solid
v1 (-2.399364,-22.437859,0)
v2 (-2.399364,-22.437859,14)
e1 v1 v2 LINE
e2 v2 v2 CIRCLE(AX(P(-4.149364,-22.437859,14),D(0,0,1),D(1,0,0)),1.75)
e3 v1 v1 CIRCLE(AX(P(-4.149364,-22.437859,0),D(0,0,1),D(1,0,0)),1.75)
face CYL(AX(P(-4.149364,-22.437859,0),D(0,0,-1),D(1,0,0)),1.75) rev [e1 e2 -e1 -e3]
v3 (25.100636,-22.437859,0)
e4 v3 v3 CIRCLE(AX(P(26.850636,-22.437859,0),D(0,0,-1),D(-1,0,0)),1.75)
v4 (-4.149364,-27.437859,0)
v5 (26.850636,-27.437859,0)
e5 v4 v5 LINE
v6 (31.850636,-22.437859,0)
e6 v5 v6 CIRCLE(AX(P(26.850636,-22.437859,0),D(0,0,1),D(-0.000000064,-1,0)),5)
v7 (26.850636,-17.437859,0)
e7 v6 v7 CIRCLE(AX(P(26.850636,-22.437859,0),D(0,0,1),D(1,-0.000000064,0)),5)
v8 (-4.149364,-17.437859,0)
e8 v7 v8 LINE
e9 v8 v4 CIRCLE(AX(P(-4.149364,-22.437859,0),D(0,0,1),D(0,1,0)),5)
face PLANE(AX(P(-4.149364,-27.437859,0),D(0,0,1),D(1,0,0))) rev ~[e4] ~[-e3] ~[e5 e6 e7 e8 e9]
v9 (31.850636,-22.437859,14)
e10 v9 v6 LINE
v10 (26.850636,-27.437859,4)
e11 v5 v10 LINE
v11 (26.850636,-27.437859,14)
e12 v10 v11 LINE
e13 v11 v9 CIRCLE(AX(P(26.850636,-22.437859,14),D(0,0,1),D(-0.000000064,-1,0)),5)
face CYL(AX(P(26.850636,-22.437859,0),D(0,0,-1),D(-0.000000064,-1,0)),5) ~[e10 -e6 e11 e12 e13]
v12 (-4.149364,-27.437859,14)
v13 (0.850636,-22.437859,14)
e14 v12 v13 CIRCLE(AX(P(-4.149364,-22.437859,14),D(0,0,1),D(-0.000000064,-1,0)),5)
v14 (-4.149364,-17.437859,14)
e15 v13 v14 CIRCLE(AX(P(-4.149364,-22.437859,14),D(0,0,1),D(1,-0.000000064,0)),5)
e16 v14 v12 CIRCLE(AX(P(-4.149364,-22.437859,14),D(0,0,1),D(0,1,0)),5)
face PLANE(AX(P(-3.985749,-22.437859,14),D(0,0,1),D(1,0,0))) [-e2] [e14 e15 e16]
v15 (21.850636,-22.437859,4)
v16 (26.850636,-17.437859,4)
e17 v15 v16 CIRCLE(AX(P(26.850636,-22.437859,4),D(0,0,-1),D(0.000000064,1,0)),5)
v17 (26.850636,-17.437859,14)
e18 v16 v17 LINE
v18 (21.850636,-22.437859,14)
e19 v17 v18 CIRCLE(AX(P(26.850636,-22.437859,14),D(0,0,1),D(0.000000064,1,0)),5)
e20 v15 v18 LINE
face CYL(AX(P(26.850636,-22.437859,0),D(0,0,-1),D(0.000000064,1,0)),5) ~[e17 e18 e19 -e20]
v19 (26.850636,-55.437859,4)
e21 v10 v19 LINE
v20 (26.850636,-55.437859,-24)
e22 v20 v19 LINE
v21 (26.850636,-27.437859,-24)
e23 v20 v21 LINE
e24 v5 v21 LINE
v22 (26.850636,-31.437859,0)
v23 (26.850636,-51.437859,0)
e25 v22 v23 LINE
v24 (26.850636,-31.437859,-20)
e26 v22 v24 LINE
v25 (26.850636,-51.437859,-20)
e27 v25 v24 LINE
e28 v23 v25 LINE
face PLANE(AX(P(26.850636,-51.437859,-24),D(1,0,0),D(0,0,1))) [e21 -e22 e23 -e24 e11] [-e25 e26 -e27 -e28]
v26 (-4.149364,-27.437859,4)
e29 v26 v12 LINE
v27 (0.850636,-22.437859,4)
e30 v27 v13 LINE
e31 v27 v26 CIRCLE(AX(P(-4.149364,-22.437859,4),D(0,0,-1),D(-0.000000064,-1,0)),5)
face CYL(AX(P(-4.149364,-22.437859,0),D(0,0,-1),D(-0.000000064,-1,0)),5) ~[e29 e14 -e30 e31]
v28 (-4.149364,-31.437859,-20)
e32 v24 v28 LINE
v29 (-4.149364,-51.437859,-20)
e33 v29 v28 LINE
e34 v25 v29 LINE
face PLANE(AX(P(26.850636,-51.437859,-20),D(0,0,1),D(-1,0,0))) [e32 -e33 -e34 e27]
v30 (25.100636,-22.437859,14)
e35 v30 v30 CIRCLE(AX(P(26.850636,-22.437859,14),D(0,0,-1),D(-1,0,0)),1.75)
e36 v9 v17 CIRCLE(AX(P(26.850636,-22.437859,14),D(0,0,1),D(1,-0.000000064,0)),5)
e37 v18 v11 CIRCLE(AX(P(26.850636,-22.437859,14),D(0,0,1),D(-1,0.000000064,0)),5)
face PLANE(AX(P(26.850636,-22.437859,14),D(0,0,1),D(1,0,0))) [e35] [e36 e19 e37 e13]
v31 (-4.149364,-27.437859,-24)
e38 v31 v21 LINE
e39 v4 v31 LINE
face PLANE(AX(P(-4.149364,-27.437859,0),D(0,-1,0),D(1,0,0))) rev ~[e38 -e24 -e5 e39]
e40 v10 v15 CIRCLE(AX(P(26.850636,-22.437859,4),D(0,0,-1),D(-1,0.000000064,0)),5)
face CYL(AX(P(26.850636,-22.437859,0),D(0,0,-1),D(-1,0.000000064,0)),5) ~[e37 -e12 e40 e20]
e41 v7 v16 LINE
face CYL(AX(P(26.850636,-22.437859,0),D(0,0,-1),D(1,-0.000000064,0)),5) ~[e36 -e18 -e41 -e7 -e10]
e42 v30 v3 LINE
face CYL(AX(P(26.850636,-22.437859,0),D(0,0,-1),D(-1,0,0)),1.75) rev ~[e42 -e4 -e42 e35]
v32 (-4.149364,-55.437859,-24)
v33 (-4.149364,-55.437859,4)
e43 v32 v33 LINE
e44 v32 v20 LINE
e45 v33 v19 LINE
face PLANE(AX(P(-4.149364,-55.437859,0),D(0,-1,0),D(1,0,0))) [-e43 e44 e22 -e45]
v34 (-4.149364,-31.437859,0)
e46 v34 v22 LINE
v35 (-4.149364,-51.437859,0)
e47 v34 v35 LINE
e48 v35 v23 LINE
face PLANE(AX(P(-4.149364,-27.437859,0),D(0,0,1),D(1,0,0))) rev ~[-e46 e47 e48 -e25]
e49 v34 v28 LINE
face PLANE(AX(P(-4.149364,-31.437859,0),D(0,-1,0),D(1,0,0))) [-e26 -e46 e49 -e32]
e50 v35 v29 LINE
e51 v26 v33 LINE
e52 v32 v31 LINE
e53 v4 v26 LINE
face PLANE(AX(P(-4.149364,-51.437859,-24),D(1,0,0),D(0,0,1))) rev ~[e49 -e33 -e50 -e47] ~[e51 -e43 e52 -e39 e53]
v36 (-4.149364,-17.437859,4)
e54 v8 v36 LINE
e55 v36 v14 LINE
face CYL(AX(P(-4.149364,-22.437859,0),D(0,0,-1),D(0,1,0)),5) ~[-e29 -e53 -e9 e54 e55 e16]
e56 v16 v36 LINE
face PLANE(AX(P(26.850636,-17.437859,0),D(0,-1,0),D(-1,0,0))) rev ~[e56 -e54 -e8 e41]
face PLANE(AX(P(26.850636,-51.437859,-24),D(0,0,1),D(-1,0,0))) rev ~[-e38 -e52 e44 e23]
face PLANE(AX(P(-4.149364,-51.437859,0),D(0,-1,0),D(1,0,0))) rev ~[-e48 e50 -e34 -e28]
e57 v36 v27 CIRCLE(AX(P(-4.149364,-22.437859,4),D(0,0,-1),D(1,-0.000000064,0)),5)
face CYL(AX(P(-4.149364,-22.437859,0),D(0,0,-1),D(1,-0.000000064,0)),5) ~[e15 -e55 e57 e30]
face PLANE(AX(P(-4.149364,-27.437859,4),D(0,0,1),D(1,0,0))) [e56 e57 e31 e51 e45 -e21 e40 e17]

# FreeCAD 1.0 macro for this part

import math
import FreeCAD as App
import Part
import Sketcher

V = App.Vector
Q = App.Units.Quantity


def add_polygon(sketch, points):
    """Adds a closed chain of lines whose ends are joined by coincident constraints."""
    first, n = sketch.GeometryCount, len(points)
    for a, b in zip(points, points[1:] + points[:1]):
        sketch.addGeometry(Part.LineSegment(App.Vector(*a, 0), App.Vector(*b, 0)), False)
    for i in range(n):
        sketch.addConstraint(Sketcher.Constraint("Coincident", first + i, 2, first + (i + 1) % n, 1))

doc = App.newDocument("Part")
body = doc.addObject("PartDesign::Body", "Body")

# Sketch on XY plane
sketch1 = body.newObject("Sketcher::SketchObject", "Sketch")
sketch1.AttachmentSupport = (doc.getObject("XY_Plane"), [""])
sketch1.MapMode = "FlatFace"
sketch1.addGeometry([
    Part.ArcOfCircle(Part.Circle(V(-4.1, -22.4, 0), V(0, 0, 1), 5), math.radians(90), math.radians(270)),  # 0
    Part.LineSegment(V(-4.1, -27.4, 0), V(26.9, -27.4, 0)),  # 1
    Part.ArcOfCircle(Part.Circle(V(26.9, -22.4, 0), V(0, 0, 1), 5), math.radians(-90), math.radians(0)),  # 2
    Part.ArcOfCircle(Part.Circle(V(26.9, -22.4, 0), V(0, 0, 1), 5), math.radians(0), math.radians(90)),  # 3
    Part.LineSegment(V(26.9, -17.4, 0), V(-4.1, -17.4, 0)),  # 4
    Part.Circle(V(-4.1, -22.4, 0), V(0, 0, 1), 1.8),  # 5
    Part.Circle(V(26.9, -22.4, 0), V(0, 0, 1), 1.8),  # 6
], False)
sketch1.addConstraint([
    Sketcher.Constraint("Tangent", 0, 2, 1, 1),
    Sketcher.Constraint("Tangent", 1, 2, 2, 1),
    Sketcher.Constraint("Tangent", 2, 2, 3, 1),
    Sketcher.Constraint("Tangent", 3, 2, 4, 1),
    Sketcher.Constraint("Tangent", 4, 2, 0, 1),
    Sketcher.Constraint("Horizontal", 1),
    Sketcher.Constraint("Horizontal", 4),
    Sketcher.Constraint("Coincident", 5, 3, 0, 3),
    Sketcher.Constraint("Coincident", 6, 3, 2, 3),
    Sketcher.Constraint("Equal", 0, 2),
    Sketcher.Constraint("Equal", 5, 6),
    Sketcher.Constraint("Horizontal", 6, 3, 2, 2),
    Sketcher.Constraint("Radius", 0, Q("5 mm")),
    Sketcher.Constraint("Diameter", 5, Q("3.5 mm")),
    Sketcher.Constraint("DistanceX", 1, 1, 1, 2, Q("31 mm")),
    Sketcher.Constraint("DistanceY", 0, 3, -1, 1, Q("22.437859 mm")),
    Sketcher.Constraint("DistanceX", 0, 3, -1, 1, Q("4.149364 mm")),
])
pad1 = body.newObject("PartDesign::Pad", "Pad")
pad1.Profile = sketch1
pad1.Length = 4

# Sketch on XY plane
sketch2 = body.newObject("Sketcher::SketchObject", "Sketch001")
sketch2.AttachmentSupport = (doc.getObject("XY_Plane"), [""])
sketch2.MapMode = "FlatFace"
sketch2.addGeometry([
    Part.ArcOfCircle(Part.Circle(V(-4.1, -22.4, 0), V(0, 0, 1), 5), math.radians(-90), math.radians(0)),  # 0
    Part.ArcOfCircle(Part.Circle(V(-4.1, -22.4, 0), V(0, 0, 1), 5), math.radians(0), math.radians(90)),  # 1
    Part.ArcOfCircle(Part.Circle(V(-4.1, -22.4, 0), V(0, 0, 1), 5), math.radians(90), math.radians(270)),  # 2
    Part.Circle(V(-4.1, -22.4, 0), V(0, 0, 1), 1.8),  # 3
    Part.ArcOfCircle(Part.Circle(V(26.9, -22.4, 0), V(0, 0, 1), 5), math.radians(90), math.radians(180)),  # 4
    Part.ArcOfCircle(Part.Circle(V(26.9, -22.4, 0), V(0, 0, 1), 5), math.radians(180), math.radians(270)),  # 5
    Part.ArcOfCircle(Part.Circle(V(26.9, -22.4, 0), V(0, 0, 1), 5), math.radians(-90), math.radians(0)),  # 6
    Part.ArcOfCircle(Part.Circle(V(26.9, -22.4, 0), V(0, 0, 1), 5), math.radians(0), math.radians(90)),  # 7
    Part.Circle(V(26.9, -22.4, 0), V(0, 0, 1), 1.8),  # 8
], False)
sketch2.addConstraint([
    Sketcher.Constraint("Tangent", 0, 2, 1, 1),
    Sketcher.Constraint("Tangent", 1, 2, 2, 1),
    Sketcher.Constraint("Tangent", 2, 2, 0, 1),
    Sketcher.Constraint("Tangent", 4, 2, 5, 1),
    Sketcher.Constraint("Tangent", 5, 2, 6, 1),
    Sketcher.Constraint("Tangent", 6, 2, 7, 1),
    Sketcher.Constraint("Tangent", 7, 2, 4, 1),
    Sketcher.Constraint("Coincident", 3, 3, 0, 3),
    Sketcher.Constraint("Coincident", 8, 3, 4, 3),
    Sketcher.Constraint("Equal", 2, 4),
    Sketcher.Constraint("Equal", 4, 5),
    Sketcher.Constraint("Equal", 3, 8),
    Sketcher.Constraint("Horizontal", 3, 3, 4, 3),
    Sketcher.Constraint("Horizontal", 8, 3, 0, 2),
    Sketcher.Constraint("Horizontal", 0, 2, 4, 2),
    Sketcher.Constraint("Horizontal", 4, 2, 6, 2),
    Sketcher.Constraint("Vertical", 3, 3, 1, 2),
    Sketcher.Constraint("Vertical", 1, 2, 2, 2),
    Sketcher.Constraint("Vertical", 8, 3, 5, 2),
    Sketcher.Constraint("Vertical", 5, 2, 7, 2),
    Sketcher.Constraint("Radius", 0, Q("5 mm")),
    Sketcher.Constraint("Diameter", 3, Q("3.5 mm")),
    Sketcher.Constraint("DistanceX", 1, 3, 4, 3, Q("30.999999 mm")),
    Sketcher.Constraint("DistanceY", 0, 3, -1, 1, Q("22.437859 mm")),
    Sketcher.Constraint("DistanceX", 0, 3, -1, 1, Q("4.149364 mm")),
])
pad2 = body.newObject("PartDesign::Pad", "Pad001")
pad2.Profile = sketch2
pad2.Length = 14

# Sketch on XZ plane
sketch3 = body.newObject("Sketcher::SketchObject", "Sketch002")
sketch3.AttachmentSupport = (doc.getObject("XZ_Plane"), [""])
sketch3.MapMode = "FlatFace"
sketch3.AttachmentOffset = App.Placement(V(0, 0, 27.437859), App.Rotation())
add_polygon(sketch3, [(-4.1, 4), (-4.1, 0), (26.9, 0), (26.9, 4)])  # lines 0-3
sketch3.addConstraint([
    Sketcher.Constraint("Vertical", 0),
    Sketcher.Constraint("Horizontal", 1),
    Sketcher.Constraint("Vertical", 2),
    Sketcher.Constraint("Horizontal", 3),
    Sketcher.Constraint("PointOnObject", 0, 2, -1),
    Sketcher.Constraint("DistanceX", 1, 1, 1, 2, Q("31 mm")),
    Sketcher.Constraint("DistanceY", 0, 2, 0, 1, Q("4 mm")),
    Sketcher.Constraint("DistanceX", 0, 2, -1, 1, Q("4.149364 mm")),
])
pad3 = body.newObject("PartDesign::Pad", "Pad002")
pad3.Profile = sketch3
pad3.Length = 28

# Sketch on XY plane
sketch4 = body.newObject("Sketcher::SketchObject", "Sketch003")
sketch4.AttachmentSupport = (doc.getObject("XY_Plane"), [""])
sketch4.MapMode = "FlatFace"
add_polygon(sketch4, [(-4.1, -55.4), (-4.1, -51.4), (26.9, -51.4), (26.9, -55.4)])  # lines 0-3
sketch4.addConstraint([
    Sketcher.Constraint("Vertical", 0),
    Sketcher.Constraint("Horizontal", 1),
    Sketcher.Constraint("Vertical", 2),
    Sketcher.Constraint("Horizontal", 3),
    Sketcher.Constraint("DistanceX", 1, 1, 1, 2, Q("31 mm")),
    Sketcher.Constraint("DistanceY", 0, 1, 0, 2, Q("4 mm")),
    Sketcher.Constraint("DistanceY", 0, 2, -1, 1, Q("51.437859 mm")),
    Sketcher.Constraint("DistanceX", 0, 2, -1, 1, Q("4.149364 mm")),
])
pad4 = body.newObject("PartDesign::Pad", "Pad003")
pad4.Profile = sketch4
pad4.Length = 24
pad4.Reversed = True

# Sketch on XY plane
sketch5 = body.newObject("Sketcher::SketchObject", "Sketch004")
sketch5.AttachmentSupport = (doc.getObject("XY_Plane"), [""])
sketch5.MapMode = "FlatFace"
add_polygon(sketch5, [(-4.1, -31.4), (-4.1, -27.4), (26.9, -27.4), (26.9, -31.4)])  # lines 0-3
sketch5.addConstraint([
    Sketcher.Constraint("Vertical", 0),
    Sketcher.Constraint("Horizontal", 1),
    Sketcher.Constraint("Vertical", 2),
    Sketcher.Constraint("Horizontal", 3),
    Sketcher.Constraint("DistanceX", 1, 1, 1, 2, Q("31 mm")),
    Sketcher.Constraint("DistanceY", 0, 1, 0, 2, Q("4 mm")),
    Sketcher.Constraint("DistanceY", 0, 2, -1, 1, Q("27.437859 mm")),
    Sketcher.Constraint("DistanceX", 0, 2, -1, 1, Q("4.149364 mm")),
])
pad5 = body.newObject("PartDesign::Pad", "Pad004")
pad5.Profile = sketch5
pad5.Length = 24
pad5.Reversed = True

# Sketch on XZ plane
sketch6 = body.newObject("Sketcher::SketchObject", "Sketch005")
sketch6.AttachmentSupport = (doc.getObject("XZ_Plane"), [""])
sketch6.MapMode = "FlatFace"
sketch6.AttachmentOffset = App.Placement(V(0, 0, 51.437859), App.Rotation())
add_polygon(sketch6, [(26.9, -20), (26.9, -24), (-4.1, -24), (-4.1, -20)])  # lines 0-3
sketch6.addConstraint([
    Sketcher.Constraint("Vertical", 0),
    Sketcher.Constraint("Horizontal", 1),
    Sketcher.Constraint("Vertical", 2),
    Sketcher.Constraint("Horizontal", 3),
    Sketcher.Constraint("DistanceX", 1, 2, 1, 1, Q("31 mm")),
    Sketcher.Constraint("DistanceY", 0, 2, 0, 1, Q("4 mm")),
    Sketcher.Constraint("DistanceY", 0, 2, -1, 1, Q("24 mm")),
    Sketcher.Constraint("DistanceX", -1, 1, 0, 2, Q("26.850636 mm")),
])
pad6 = body.newObject("PartDesign::Pad", "Pad005")
pad6.Profile = sketch6
pad6.Type = "UpToLast"
pad6.Reversed = True

doc.recompute()
